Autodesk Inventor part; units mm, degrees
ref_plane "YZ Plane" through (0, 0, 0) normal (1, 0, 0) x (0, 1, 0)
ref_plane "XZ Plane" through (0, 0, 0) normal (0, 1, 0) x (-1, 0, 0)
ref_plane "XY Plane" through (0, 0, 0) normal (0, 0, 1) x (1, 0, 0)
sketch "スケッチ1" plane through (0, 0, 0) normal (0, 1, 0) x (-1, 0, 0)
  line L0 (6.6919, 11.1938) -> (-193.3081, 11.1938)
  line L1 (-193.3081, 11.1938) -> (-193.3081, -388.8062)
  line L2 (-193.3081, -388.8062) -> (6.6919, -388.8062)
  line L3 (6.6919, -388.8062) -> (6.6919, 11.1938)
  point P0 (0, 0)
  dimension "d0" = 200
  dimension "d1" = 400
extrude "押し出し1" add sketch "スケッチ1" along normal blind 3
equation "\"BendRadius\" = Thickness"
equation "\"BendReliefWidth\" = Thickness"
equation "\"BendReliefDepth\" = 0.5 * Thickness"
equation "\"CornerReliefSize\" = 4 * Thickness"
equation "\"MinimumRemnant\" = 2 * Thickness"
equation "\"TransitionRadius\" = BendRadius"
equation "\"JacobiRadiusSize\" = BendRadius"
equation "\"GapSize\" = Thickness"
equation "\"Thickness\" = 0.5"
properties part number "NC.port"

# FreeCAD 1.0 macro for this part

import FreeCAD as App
import Part
import Sketcher

V = App.Vector
Q = App.Units.Quantity

doc = App.newDocument("Part")
body = doc.addObject("PartDesign::Body", "Body")

# Sketch on XZ plane
sketch1 = body.newObject("Sketcher::SketchObject", "Sketch")
sketch1.AttachmentSupport = (doc.getObject("XZ_Plane"), [""])
sketch1.MapMode = "FlatFace"
sketch1.addGeometry(Part.LineSegment(V(-7, -389, 0), V(-7, 11, 0)), False)
sketch1.addGeometry(Part.LineSegment(V(-7, 11, 0), V(193, 11, 0)), False)
sketch1.addGeometry(Part.LineSegment(V(193, 11, 0), V(193, -389, 0)), False)
sketch1.addGeometry(Part.LineSegment(V(193, -389, 0), V(-7, -389, 0)), False)
sketch1.addConstraint(Sketcher.Constraint("Coincident", 0, 2, 1, 1))
sketch1.addConstraint(Sketcher.Constraint("Coincident", 1, 2, 2, 1))
sketch1.addConstraint(Sketcher.Constraint("Coincident", 2, 2, 3, 1))
sketch1.addConstraint(Sketcher.Constraint("Coincident", 3, 2, 0, 1))
sketch1.addConstraint(Sketcher.Constraint("Vertical", 0))
sketch1.addConstraint(Sketcher.Constraint("Horizontal", 1))
sketch1.addConstraint(Sketcher.Constraint("Vertical", 2))
sketch1.addConstraint(Sketcher.Constraint("Horizontal", 3))
sketch1.addConstraint(Sketcher.Constraint("DistanceX", 1, 1, 1, 2, Q("200 mm")))
sketch1.addConstraint(Sketcher.Constraint("DistanceY", 0, 1, 0, 2, Q("400 mm")))
sketch1.addConstraint(Sketcher.Constraint("DistanceX", 0, 2, -1, 1, Q("6.692 mm")))
sketch1.addConstraint(Sketcher.Constraint("DistanceY", -1, 1, 0, 2, Q("11.1938 mm")))
pad1 = body.newObject("PartDesign::Pad", "Pad")
pad1.Profile = sketch1
pad1.Length = 3
pad1.Reversed = True

doc.recompute()
